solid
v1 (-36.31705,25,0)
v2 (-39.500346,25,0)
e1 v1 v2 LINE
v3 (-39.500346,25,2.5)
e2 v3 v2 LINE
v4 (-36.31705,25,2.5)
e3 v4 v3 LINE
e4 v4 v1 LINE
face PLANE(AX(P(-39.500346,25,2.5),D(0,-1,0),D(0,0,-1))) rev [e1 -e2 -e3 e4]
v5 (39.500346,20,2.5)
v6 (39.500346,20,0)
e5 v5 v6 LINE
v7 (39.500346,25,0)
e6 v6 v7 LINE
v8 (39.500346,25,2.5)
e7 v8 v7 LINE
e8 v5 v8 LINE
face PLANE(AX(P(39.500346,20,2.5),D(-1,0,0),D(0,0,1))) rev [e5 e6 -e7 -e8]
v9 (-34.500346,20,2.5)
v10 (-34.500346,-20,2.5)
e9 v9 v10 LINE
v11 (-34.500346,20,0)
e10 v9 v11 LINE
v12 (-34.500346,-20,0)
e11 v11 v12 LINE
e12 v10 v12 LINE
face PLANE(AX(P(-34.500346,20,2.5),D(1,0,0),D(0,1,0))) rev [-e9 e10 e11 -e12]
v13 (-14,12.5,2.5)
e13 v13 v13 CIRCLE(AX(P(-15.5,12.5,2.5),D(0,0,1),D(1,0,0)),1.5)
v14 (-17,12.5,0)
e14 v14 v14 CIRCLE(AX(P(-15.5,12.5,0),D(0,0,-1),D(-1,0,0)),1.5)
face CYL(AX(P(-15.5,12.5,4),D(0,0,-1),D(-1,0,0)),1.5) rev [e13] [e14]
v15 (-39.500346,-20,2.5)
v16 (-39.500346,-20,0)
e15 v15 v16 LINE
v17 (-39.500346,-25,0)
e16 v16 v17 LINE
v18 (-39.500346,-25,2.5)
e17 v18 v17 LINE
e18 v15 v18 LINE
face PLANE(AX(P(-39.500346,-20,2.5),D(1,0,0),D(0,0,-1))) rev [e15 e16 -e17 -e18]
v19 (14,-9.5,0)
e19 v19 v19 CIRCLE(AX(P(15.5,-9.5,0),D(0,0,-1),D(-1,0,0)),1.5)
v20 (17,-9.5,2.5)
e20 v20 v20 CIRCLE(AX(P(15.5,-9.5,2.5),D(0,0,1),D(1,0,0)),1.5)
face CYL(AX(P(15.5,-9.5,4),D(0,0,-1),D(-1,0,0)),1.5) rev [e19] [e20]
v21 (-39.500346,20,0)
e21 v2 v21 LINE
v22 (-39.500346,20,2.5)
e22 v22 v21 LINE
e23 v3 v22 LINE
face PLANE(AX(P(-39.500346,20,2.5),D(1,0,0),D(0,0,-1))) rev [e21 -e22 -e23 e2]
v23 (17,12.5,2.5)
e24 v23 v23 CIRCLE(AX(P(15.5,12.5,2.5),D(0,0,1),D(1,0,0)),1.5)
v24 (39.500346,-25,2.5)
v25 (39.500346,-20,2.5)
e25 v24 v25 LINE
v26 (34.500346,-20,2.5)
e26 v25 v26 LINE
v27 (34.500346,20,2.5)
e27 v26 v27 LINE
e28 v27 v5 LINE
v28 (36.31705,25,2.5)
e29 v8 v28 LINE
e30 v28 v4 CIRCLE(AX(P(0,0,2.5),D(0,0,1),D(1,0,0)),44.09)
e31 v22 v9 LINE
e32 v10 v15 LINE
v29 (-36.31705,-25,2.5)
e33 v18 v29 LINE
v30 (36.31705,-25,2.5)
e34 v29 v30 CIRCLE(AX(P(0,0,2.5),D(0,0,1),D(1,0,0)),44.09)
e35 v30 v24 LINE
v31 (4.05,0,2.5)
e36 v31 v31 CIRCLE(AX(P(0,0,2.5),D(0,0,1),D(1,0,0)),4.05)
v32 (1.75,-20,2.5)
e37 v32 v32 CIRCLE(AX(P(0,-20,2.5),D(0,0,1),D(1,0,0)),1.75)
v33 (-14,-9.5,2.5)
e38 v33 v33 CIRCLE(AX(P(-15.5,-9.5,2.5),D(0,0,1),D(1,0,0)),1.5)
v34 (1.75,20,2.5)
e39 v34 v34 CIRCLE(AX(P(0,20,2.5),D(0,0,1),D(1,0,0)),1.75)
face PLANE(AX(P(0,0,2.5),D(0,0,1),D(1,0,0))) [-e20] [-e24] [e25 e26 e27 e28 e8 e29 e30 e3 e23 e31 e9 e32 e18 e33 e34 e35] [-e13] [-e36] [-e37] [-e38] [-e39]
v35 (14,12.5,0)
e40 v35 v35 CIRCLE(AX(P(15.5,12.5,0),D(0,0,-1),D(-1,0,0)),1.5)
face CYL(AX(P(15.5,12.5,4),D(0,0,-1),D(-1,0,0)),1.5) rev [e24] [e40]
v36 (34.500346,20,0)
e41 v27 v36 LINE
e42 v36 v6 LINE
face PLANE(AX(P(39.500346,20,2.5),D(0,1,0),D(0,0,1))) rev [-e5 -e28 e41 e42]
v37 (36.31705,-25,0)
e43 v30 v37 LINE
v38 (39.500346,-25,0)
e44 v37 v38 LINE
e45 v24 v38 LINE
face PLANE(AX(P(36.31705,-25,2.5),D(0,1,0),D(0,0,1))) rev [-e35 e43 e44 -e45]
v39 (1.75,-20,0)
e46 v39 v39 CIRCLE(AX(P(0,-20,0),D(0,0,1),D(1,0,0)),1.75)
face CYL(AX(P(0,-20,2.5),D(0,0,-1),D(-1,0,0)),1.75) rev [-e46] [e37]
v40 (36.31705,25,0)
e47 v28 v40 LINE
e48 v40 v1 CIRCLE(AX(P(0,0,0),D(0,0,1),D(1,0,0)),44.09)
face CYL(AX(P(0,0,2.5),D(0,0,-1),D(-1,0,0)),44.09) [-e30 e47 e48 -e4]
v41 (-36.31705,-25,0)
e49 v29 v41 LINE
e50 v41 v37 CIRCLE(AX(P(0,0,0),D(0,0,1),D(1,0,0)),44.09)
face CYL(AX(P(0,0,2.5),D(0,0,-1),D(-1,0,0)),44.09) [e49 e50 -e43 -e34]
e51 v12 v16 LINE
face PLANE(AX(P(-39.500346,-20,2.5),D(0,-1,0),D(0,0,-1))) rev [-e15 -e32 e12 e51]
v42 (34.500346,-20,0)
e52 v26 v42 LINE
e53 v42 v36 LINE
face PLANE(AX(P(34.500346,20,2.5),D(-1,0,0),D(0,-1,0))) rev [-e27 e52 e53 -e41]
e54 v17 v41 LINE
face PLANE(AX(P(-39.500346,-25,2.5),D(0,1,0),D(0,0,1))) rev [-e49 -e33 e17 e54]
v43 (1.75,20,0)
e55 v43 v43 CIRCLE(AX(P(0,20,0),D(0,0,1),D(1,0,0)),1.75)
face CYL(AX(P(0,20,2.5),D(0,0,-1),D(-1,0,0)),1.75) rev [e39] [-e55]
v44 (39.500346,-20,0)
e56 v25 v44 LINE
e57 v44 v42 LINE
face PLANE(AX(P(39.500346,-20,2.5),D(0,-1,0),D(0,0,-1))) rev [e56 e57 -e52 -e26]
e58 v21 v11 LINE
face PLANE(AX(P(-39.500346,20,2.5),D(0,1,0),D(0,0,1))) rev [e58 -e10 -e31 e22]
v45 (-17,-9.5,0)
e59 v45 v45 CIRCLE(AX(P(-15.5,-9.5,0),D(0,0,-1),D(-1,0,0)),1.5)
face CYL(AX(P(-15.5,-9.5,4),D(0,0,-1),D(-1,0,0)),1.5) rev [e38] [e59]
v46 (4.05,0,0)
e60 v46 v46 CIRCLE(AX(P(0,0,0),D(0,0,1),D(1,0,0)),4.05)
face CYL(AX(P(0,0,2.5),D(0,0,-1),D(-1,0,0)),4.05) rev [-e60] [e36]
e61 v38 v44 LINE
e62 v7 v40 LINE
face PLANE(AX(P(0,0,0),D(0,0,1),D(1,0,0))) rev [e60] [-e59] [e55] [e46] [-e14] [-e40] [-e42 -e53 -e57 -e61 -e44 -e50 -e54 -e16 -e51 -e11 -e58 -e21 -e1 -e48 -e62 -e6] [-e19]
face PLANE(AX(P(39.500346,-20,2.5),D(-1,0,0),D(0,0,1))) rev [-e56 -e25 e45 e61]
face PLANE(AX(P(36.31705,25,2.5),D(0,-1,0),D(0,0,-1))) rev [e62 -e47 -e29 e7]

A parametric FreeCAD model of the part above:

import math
import FreeCAD as App
import Part
import Sketcher
Q = App.Units.Quantity

doc = App.newDocument("Part")
params = doc.addObject("Spreadsheet::Sheet", "Params")
for row, (alias, value) in enumerate([
    ("sketch1_diameter", "3.5 mm"),
    ("sketch1_diameter2", "8.1 mm"),
    ("sketch1_width", "5 mm"),
    ("sketch1_height", "40 mm"),
    ("sketch1_radius", "44.09 mm"),
    ("pad1_length", "2.5 mm"),
    ("sketch2_diameter", "3 mm"),
    ("pocket1_length", "4 mm"),
], start=1):
    params.set(f"A{row}", alias)
    params.set(f"B{row}", "=" + value)
    params.setAlias(f"B{row}", alias)

body = doc.addObject("PartDesign::Body", "Body")

# Sketch on XY plane
sketch1 = body.newObject("Sketcher::SketchObject", "Sketch")
sketch1.AttachmentSupport = (doc.getObject("XY_Plane"), [""])
sketch1.MapMode = "FlatFace"
sketch1.addGeometry([
    Part.LineSegment(App.Vector(-39.500346, 20, 0), App.Vector(-34.500346, 20, 0)),  # 0
    Part.LineSegment(App.Vector(-34.500346, 20, 0), App.Vector(-34.500346, -20, 0)),  # 1
    Part.LineSegment(App.Vector(-34.500346, -20, 0), App.Vector(-39.500346, -20, 0)),  # 2
    Part.LineSegment(App.Vector(-39.500346, -20, 0), App.Vector(-39.500346, -25, 0)),  # 3
    Part.LineSegment(App.Vector(-39.500346, -25, 0), App.Vector(-36.31705, -25, 0)),  # 4
    Part.ArcOfCircle(Part.Circle(App.Vector(0, 0, 0), App.Vector(0, 0, 1), 44.09), math.radians(-145.457179), math.radians(-34.542821)),  # 5
    Part.LineSegment(App.Vector(36.31705, -25, 0), App.Vector(39.500346, -25, 0)),  # 6
    Part.LineSegment(App.Vector(39.500346, -25, 0), App.Vector(39.500346, -20, 0)),  # 7
    Part.LineSegment(App.Vector(39.500346, -20, 0), App.Vector(34.500346, -20, 0)),  # 8
    Part.LineSegment(App.Vector(34.500346, -20, 0), App.Vector(34.500346, 20, 0)),  # 9
    Part.LineSegment(App.Vector(34.500346, 20, 0), App.Vector(39.500346, 20, 0)),  # 10
    Part.LineSegment(App.Vector(39.500346, 20, 0), App.Vector(39.500346, 25, 0)),  # 11
    Part.LineSegment(App.Vector(39.500346, 25, 0), App.Vector(36.31705, 25, 0)),  # 12
    Part.ArcOfCircle(Part.Circle(App.Vector(0, 0, 0), App.Vector(0, 0, 1), 44.09), math.radians(34.542821), math.radians(145.457179)),  # 13
    Part.LineSegment(App.Vector(-36.31705, 25, 0), App.Vector(-39.500346, 25, 0)),  # 14
    Part.LineSegment(App.Vector(-39.500346, 25, 0), App.Vector(-39.500346, 20, 0)),  # 15
    Part.Circle(App.Vector(0, -20, 0), App.Vector(0, 0, 1), 1.75),  # 16
    Part.Circle(App.Vector(0, 0, 0), App.Vector(0, 0, 1), 4.05),  # 17
    Part.Circle(App.Vector(0, 20, 0), App.Vector(0, 0, 1), 1.75),  # 18
], False)
sketch1.addConstraint([
    Sketcher.Constraint("Coincident", 0, 2, 1, 1),
    Sketcher.Constraint("Coincident", 1, 2, 2, 1),
    Sketcher.Constraint("Coincident", 2, 2, 3, 1),
    Sketcher.Constraint("Coincident", 3, 2, 4, 1),
    Sketcher.Constraint("Coincident", 4, 2, 5, 1),
    Sketcher.Constraint("Coincident", 5, 2, 6, 1),
    Sketcher.Constraint("Coincident", 6, 2, 7, 1),
    Sketcher.Constraint("Coincident", 7, 2, 8, 1),
    Sketcher.Constraint("Coincident", 8, 2, 9, 1),
    Sketcher.Constraint("Coincident", 9, 2, 10, 1),
    Sketcher.Constraint("Coincident", 10, 2, 11, 1),
    Sketcher.Constraint("Coincident", 11, 2, 12, 1),
    Sketcher.Constraint("Coincident", 12, 2, 13, 1),
    Sketcher.Constraint("Coincident", 13, 2, 14, 1),
    Sketcher.Constraint("Coincident", 14, 2, 15, 1),
    Sketcher.Constraint("Coincident", 15, 2, 0, 1),
    Sketcher.Constraint("Horizontal", 0),
    Sketcher.Constraint("Vertical", 1),
    Sketcher.Constraint("Horizontal", 2),
    Sketcher.Constraint("Vertical", 3),
    Sketcher.Constraint("Horizontal", 4),
    Sketcher.Constraint("Horizontal", 6),
    Sketcher.Constraint("Vertical", 7),
    Sketcher.Constraint("Horizontal", 8),
    Sketcher.Constraint("Vertical", 9),
    Sketcher.Constraint("Horizontal", 10),
    Sketcher.Constraint("Vertical", 11),
    Sketcher.Constraint("Horizontal", 12),
    Sketcher.Constraint("Horizontal", 14),
    Sketcher.Constraint("Vertical", 15),
    Sketcher.Constraint("Coincident", 5, 3, -1, 1),
    Sketcher.Constraint("Coincident", 13, 3, -1, 1),
    Sketcher.Constraint("Coincident", 17, 3, -1, 1),
    Sketcher.Constraint("Equal", 5, 13),
    Sketcher.Constraint("Equal", 16, 18),
    Sketcher.Constraint("Symmetric", 16, 3, 18, 3, -1, 1),
    Sketcher.Constraint("Symmetric", 0, 2, 8, 2, -1, 1),
    Sketcher.Constraint("Symmetric", 2, 2, 10, 2, -1, 1),
    Sketcher.Constraint("Symmetric", 6, 2, 14, 2, -1, 1),
    Sketcher.Constraint("Symmetric", 3, 2, 6, 2, -2),
    Sketcher.Constraint("PointOnObject", 16, 3, -2),
    Sketcher.Constraint("Horizontal", 18, 3, 0, 2),
    Sketcher.Constraint("Horizontal", 16, 3, 1, 2),
    Sketcher.Constraint("Horizontal", 12, 2, 13, 2),
    Sketcher.Constraint("Equal", 10, 3),
    Sketcher.Constraint("Diameter", 16, Q("3.5 mm")),
    Sketcher.Constraint("Diameter", 17, Q("8.1 mm")),
    Sketcher.Constraint("DistanceX", 0, 1, 0, 2, Q("5 mm")),
    Sketcher.Constraint("DistanceY", 1, 2, 1, 1, Q("40 mm")),
    Sketcher.Constraint("Radius", 5, Q("44.09 mm")),
    Sketcher.Constraint("DistanceX", 4, 1, 4, 2, Q("3.183297 mm")),
])
sketch1.setExpression("Constraints[45]", "Params.sketch1_diameter")
sketch1.setExpression("Constraints[46]", "Params.sketch1_diameter2")
sketch1.setExpression("Constraints[47]", "Params.sketch1_width")
sketch1.setExpression("Constraints[48]", "Params.sketch1_height")
sketch1.setExpression("Constraints[49]", "Params.sketch1_radius")
pad1 = body.newObject("PartDesign::Pad", "Pad")
pad1.Profile = sketch1
pad1.setExpression("Length", "Params.pad1_length")

# Sketch on XY plane
sketch2 = body.newObject("Sketcher::SketchObject", "Sketch001")
sketch2.AttachmentSupport = (doc.getObject("XY_Plane"), [""])
sketch2.MapMode = "FlatFace"
sketch2.addGeometry([
    Part.Circle(App.Vector(-15.5, -9.5, 0), App.Vector(0, 0, 1), 1.5),
    Part.Circle(App.Vector(-15.5, 12.5, 0), App.Vector(0, 0, 1), 1.5),
    Part.Circle(App.Vector(15.5, 12.5, 0), App.Vector(0, 0, 1), 1.5),
    Part.Circle(App.Vector(15.5, -9.5, 0), App.Vector(0, 0, 1), 1.5),
], False)
sketch2.addConstraint([
    Sketcher.Constraint("Equal", 0, 1),
    Sketcher.Constraint("Equal", 1, 2),
    Sketcher.Constraint("Equal", 2, 3),
    Sketcher.Constraint("Symmetric", 1, 3, 2, 3, -2),
    Sketcher.Constraint("Symmetric", 0, 3, 3, 3, -2),
    Sketcher.Constraint("Vertical", 0, 3, 1, 3),
    Sketcher.Constraint("Diameter", 0, Q("3 mm")),
    Sketcher.Constraint("DistanceY", 0, 3, 1, 3, Q("22 mm")),
    Sketcher.Constraint("DistanceX", 1, 3, 2, 3, Q("31 mm")),
    Sketcher.Constraint("DistanceY", 0, 3, -1, 1, Q("9.5 mm")),
])
sketch2.setExpression("Constraints[6]", "Params.sketch2_diameter")
pocket1 = body.newObject("PartDesign::Pocket", "Pocket")
pocket1.Profile = sketch2
pocket1.setExpression("Length", "Params.pocket1_length")
pocket1.Reversed = True

doc.recompute()
